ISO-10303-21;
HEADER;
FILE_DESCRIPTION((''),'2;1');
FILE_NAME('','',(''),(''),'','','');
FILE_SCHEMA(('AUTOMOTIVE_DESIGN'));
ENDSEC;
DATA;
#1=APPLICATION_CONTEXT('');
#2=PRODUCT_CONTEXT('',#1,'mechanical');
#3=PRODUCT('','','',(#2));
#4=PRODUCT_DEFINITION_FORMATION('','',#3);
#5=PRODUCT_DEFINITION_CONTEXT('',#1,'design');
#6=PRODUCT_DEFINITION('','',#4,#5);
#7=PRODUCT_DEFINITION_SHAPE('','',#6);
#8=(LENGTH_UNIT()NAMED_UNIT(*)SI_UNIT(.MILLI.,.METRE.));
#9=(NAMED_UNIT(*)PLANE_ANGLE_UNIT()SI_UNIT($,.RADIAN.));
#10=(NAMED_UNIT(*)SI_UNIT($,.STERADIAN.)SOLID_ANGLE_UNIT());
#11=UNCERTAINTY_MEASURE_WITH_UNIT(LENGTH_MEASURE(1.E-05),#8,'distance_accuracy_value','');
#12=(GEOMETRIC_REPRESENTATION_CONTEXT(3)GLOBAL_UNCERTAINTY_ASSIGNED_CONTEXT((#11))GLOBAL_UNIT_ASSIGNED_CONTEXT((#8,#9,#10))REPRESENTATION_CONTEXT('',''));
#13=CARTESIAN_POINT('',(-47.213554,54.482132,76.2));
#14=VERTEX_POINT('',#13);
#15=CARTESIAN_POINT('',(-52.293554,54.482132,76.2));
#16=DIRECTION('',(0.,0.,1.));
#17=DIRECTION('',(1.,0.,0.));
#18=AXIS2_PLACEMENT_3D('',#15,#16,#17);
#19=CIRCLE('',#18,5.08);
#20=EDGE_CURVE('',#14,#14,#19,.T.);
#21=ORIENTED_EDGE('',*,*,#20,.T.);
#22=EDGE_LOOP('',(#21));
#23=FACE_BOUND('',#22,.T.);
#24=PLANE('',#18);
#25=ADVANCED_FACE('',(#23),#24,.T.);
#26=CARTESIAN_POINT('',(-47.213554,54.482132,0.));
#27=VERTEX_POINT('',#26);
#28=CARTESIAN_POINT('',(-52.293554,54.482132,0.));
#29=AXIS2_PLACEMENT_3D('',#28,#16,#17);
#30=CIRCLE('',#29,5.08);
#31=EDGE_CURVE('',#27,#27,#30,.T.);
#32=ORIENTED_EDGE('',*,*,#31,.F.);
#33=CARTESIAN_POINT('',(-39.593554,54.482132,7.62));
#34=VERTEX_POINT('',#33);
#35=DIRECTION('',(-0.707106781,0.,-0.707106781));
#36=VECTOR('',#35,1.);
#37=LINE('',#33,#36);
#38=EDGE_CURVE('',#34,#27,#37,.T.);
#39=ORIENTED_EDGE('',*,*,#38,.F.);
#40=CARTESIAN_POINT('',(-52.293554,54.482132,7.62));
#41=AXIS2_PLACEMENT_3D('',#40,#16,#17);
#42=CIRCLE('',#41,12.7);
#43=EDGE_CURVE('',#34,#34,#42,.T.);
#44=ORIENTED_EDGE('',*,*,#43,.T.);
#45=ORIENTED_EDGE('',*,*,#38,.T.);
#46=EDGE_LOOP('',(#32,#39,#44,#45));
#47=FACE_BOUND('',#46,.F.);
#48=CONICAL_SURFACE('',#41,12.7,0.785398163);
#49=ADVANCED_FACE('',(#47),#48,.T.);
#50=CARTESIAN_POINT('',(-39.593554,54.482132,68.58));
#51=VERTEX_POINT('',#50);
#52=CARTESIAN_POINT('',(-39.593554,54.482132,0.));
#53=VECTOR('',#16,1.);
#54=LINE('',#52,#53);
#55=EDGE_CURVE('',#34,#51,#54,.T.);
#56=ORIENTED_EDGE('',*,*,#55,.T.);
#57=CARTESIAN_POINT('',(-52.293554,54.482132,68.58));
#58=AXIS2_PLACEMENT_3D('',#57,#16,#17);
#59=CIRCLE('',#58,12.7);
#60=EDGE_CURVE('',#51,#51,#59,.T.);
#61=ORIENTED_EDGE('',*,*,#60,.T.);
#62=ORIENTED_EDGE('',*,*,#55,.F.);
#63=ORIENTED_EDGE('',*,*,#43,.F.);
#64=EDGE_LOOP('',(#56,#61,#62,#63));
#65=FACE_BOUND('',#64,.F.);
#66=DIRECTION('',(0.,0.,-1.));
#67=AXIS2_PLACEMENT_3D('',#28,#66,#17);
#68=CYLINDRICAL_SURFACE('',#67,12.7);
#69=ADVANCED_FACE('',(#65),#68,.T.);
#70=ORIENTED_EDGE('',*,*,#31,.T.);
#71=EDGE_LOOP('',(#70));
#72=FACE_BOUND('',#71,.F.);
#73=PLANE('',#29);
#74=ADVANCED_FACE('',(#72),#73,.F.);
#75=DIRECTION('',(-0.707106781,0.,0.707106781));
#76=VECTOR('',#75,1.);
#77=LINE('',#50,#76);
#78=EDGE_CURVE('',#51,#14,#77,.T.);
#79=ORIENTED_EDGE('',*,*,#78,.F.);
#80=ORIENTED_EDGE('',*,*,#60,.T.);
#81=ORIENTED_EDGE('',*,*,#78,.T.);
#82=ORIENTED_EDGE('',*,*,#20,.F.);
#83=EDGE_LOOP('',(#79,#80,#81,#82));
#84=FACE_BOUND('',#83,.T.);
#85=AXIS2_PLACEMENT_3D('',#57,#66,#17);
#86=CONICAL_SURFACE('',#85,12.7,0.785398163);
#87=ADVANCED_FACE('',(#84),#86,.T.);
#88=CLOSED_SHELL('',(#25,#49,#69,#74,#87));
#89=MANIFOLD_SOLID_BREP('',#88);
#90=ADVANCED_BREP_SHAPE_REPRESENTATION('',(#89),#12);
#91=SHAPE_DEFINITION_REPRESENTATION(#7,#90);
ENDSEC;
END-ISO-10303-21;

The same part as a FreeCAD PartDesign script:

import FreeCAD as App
import Part
import Sketcher

V = App.Vector
Q = App.Units.Quantity


def edges_at(feature, points):
    """Names of the edges that pass closest to the given points."""
    edges = feature.Shape.Edges
    near = lambda p: min(range(len(edges)), key=lambda i: edges[i].distToShape(Part.Vertex(*p))[0])
    return sorted({f"Edge{near(p) + 1}" for p in points})

doc = App.newDocument("Part")
params = doc.addObject("Spreadsheet::Sheet", "Params")
for row, (alias, value) in enumerate([
    ("sketch1_diameter", "1 in"),
    ("pad1_length", "3 in"),
    ("chamfer_size", "0.3 in"),
    ("chamfer2_size", "0.3 in"),
], start=1):
    params.set(f"A{row}", alias)
    params.set(f"B{row}", "=" + value)
    params.setAlias(f"B{row}", alias)

body = doc.addObject("PartDesign::Body", "Body")

# Sketch on XY plane
sketch1 = body.newObject("Sketcher::SketchObject", "Sketch")
sketch1.AttachmentSupport = (doc.getObject("XY_Plane"), [""])
sketch1.MapMode = "FlatFace"
sketch1.addGeometry(Part.Circle(V(-52.293554, 54.482132, 0), V(0, 0, 1), 12.7), False)
sketch1.addConstraint(Sketcher.Constraint("Diameter", 0, Q("1 in")))
sketch1.addConstraint(Sketcher.Constraint("DistanceX", 0, 3, -1, 1, 52.293554))
sketch1.addConstraint(Sketcher.Constraint("DistanceY", -1, 1, 0, 3, 54.482132))
sketch1.setExpression("Constraints[0]", "Params.sketch1_diameter")
pad1 = body.newObject("PartDesign::Pad", "Pad")
pad1.Profile = sketch1
pad1.setExpression("Length", "Params.pad1_length")
doc.recompute()

chamfer = body.newObject("PartDesign::Chamfer", "Chamfer")
chamfer.Base = (pad1, edges_at(pad1, [(-64.994, 54.482, 76.2)]))
chamfer.setExpression("Size", "Params.chamfer_size")
doc.recompute()

chamfer2 = body.newObject("PartDesign::Chamfer", "Chamfer001")
chamfer2.Base = (chamfer, edges_at(chamfer, [(-64.994, 54.482, 0)]))
chamfer2.setExpression("Size", "Params.chamfer2_size")

doc.recompute()
